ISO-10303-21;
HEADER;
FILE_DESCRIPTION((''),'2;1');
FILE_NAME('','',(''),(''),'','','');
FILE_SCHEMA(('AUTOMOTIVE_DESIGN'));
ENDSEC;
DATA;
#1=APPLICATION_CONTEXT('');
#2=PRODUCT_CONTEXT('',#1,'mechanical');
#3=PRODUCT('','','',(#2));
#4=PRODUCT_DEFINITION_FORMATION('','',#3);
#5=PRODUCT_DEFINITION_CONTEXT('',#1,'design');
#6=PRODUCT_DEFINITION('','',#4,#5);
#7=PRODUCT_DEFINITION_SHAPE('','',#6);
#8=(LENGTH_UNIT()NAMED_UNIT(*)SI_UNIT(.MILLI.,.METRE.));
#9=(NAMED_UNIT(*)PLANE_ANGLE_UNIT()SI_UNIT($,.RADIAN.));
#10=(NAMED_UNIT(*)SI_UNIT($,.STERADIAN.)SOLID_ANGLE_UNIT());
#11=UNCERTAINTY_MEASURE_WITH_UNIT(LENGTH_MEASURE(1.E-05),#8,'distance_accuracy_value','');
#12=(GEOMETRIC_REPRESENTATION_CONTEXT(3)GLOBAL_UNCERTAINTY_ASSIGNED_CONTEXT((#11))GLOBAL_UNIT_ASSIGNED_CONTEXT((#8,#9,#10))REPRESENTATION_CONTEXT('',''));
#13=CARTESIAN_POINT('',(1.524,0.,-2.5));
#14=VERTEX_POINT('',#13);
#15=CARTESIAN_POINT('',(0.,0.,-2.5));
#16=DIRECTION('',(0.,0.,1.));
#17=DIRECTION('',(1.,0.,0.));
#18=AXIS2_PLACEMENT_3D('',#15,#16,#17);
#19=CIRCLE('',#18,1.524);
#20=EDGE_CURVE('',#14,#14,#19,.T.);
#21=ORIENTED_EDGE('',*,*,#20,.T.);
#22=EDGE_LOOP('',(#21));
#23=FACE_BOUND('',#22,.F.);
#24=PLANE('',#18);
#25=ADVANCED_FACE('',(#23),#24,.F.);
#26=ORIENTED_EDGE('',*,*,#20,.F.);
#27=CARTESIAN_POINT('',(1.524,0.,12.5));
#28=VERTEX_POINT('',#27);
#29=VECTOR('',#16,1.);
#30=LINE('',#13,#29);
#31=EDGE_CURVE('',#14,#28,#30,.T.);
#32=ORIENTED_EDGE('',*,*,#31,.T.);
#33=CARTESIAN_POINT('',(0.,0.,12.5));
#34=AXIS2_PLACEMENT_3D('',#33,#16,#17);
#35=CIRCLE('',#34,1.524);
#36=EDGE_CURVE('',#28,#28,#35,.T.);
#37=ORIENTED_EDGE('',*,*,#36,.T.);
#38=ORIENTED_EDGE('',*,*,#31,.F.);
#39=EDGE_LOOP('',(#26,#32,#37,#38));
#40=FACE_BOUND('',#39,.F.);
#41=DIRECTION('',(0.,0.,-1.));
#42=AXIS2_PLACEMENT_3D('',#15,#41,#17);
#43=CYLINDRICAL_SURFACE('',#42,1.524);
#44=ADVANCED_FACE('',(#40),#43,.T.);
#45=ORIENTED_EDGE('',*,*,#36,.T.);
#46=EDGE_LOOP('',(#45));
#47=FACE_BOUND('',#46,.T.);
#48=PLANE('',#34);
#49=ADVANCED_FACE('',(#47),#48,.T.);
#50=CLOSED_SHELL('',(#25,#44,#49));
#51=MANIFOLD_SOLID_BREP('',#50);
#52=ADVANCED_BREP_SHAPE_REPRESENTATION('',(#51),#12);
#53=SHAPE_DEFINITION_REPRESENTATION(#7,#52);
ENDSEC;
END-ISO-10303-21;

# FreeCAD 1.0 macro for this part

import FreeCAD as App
import Part
import Sketcher

V = App.Vector
Q = App.Units.Quantity

doc = App.newDocument("Part")
body = doc.addObject("PartDesign::Body", "Body")

# Sketch on XY plane
sketch1 = body.newObject("Sketcher::SketchObject", "Sketch")
sketch1.AttachmentSupport = (doc.getObject("XY_Plane"), [""])
sketch1.MapMode = "FlatFace"
sketch1.AttachmentOffset = App.Placement(V(0, 0, -2.5), App.Rotation())
sketch1.addGeometry(Part.Circle(V(0, 0, 0), V(0, 0, 1), 1.5), False)
sketch1.addConstraint(Sketcher.Constraint("Coincident", 0, 3, -1, 1))
sketch1.addConstraint(Sketcher.Constraint("Diameter", 0, Q("3.048 mm")))
pad1 = body.newObject("PartDesign::Pad", "Pad")
pad1.Profile = sketch1
pad1.Length = 15

doc.recompute()
